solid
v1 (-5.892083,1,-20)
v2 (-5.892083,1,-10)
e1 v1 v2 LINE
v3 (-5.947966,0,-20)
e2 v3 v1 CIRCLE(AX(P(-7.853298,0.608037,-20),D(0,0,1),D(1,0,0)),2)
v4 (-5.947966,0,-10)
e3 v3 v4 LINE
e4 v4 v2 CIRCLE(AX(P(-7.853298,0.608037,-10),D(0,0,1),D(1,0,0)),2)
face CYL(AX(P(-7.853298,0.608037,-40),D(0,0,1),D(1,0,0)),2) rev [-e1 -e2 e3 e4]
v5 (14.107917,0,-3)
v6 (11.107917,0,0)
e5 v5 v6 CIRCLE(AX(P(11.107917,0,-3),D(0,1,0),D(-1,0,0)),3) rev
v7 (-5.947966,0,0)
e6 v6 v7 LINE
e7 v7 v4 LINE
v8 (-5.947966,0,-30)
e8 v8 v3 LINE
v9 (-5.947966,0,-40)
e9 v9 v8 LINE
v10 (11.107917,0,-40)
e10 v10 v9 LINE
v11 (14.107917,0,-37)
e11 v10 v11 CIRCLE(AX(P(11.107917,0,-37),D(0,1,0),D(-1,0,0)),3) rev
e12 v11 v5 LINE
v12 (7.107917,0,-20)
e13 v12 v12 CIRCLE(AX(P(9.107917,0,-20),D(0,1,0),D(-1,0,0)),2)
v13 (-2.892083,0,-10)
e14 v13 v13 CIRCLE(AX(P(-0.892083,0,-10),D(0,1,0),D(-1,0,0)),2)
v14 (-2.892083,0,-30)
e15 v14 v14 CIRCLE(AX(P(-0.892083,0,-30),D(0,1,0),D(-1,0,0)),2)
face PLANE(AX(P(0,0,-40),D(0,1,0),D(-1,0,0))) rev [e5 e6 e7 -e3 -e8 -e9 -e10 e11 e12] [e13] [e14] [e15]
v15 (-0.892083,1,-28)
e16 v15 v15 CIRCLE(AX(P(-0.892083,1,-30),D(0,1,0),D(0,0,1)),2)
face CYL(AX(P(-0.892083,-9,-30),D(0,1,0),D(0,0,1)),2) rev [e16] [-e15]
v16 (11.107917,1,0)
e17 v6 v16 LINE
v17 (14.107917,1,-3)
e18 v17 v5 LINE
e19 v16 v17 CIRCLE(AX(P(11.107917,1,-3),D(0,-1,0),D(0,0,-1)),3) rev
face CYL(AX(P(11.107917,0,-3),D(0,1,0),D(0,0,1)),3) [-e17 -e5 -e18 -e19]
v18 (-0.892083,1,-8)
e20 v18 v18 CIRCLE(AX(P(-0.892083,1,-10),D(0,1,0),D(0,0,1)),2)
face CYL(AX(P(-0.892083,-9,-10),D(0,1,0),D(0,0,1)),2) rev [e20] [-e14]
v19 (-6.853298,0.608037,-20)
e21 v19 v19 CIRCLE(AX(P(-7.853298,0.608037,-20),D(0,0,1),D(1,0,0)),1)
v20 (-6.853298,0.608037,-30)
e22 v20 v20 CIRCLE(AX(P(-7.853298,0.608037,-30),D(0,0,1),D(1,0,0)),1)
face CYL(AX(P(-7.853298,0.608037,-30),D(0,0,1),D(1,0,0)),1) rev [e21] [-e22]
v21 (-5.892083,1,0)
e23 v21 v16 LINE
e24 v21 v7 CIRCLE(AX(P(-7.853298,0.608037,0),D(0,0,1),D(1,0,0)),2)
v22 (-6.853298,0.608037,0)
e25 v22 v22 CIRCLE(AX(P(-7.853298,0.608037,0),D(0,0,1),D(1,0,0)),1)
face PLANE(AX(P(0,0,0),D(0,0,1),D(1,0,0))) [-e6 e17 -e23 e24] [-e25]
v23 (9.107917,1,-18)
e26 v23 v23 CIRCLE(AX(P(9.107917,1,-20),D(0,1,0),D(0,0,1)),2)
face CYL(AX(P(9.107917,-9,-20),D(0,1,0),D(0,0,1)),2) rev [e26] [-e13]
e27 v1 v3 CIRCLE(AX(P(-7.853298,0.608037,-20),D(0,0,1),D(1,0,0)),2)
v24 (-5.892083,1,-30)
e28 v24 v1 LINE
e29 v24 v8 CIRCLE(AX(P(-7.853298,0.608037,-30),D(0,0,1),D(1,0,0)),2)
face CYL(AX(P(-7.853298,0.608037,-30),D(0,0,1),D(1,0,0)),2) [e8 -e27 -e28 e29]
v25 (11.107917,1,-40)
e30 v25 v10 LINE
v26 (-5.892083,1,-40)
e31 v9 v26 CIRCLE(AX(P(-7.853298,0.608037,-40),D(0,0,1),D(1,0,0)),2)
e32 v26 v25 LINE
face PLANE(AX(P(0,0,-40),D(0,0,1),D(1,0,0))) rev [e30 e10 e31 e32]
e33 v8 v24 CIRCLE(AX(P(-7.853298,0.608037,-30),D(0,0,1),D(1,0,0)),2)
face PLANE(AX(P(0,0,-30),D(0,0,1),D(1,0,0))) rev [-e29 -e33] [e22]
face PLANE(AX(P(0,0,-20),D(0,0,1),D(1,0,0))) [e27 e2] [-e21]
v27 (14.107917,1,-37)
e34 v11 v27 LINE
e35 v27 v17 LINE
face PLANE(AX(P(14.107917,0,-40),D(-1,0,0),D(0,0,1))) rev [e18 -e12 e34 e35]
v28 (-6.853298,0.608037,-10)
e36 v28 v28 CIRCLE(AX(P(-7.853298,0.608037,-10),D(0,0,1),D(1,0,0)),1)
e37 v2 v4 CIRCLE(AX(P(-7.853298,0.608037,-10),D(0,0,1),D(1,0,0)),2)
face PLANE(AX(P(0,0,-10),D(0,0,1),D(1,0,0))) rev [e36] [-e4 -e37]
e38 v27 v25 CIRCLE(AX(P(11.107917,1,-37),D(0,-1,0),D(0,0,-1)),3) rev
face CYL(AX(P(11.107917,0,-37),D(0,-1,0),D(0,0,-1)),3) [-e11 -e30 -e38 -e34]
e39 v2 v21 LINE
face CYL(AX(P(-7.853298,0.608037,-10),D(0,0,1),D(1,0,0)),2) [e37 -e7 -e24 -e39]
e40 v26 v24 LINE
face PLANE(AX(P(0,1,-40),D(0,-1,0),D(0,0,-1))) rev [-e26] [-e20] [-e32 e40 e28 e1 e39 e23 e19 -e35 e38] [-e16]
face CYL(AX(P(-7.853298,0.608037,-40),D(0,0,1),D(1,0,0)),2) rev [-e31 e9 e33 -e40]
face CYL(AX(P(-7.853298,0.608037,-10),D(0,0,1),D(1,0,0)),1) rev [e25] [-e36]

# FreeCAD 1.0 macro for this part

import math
import FreeCAD as App
import Part
import Sketcher
from FreeCAD import Vector
Q = App.Units.Quantity


def edges_at(feature, points):
    """Names of the edges that pass closest to the given points."""
    edges = feature.Shape.Edges
    near = lambda p: min(range(len(edges)), key=lambda i: edges[i].distToShape(Part.Vertex(*p))[0])
    return sorted({f"Edge{near(p) + 1}" for p in points})

doc = App.newDocument("Part")
body = doc.addObject("PartDesign::Body", "Body")

# Sketch on XY plane
sketch1 = doc.addObject("Sketcher::SketchObject", "Sketch")
body.addObject(sketch1)
sketch1.AttachmentSupport = (doc.XY_Plane, [""])
sketch1.MapMode = "FlatFace"
sketch1.addGeometry(Part.LineSegment(Vector(14.11, 0, 0), Vector(14.11, 1, 0)), False)
sketch1.addGeometry(Part.LineSegment(Vector(14.11, 1, 0), Vector(-5.89, 1, 0)), False)
sketch1.addGeometry(Part.ArcOfCircle(Part.Circle(Vector(-7.85, 0.61, 0), Vector(0, 0, 1), 2), math.radians(0), math.radians(11.3)), False)
sketch1.addGeometry(Part.ArcOfCircle(Part.Circle(Vector(-7.85, 0.61, 0), Vector(0, 0, 1), 2), math.radians(-17.7), math.radians(0)), False)
sketch1.addGeometry(Part.LineSegment(Vector(-5.95, 0, 0), Vector(14.11, 0, 0)), False)
sketch1.addConstraint(Sketcher.Constraint("Coincident", 0, 2, 1, 1))
sketch1.addConstraint(Sketcher.Constraint("Coincident", 1, 2, 2, 2))
sketch1.addConstraint(Sketcher.Constraint("Tangent", 2, 1, 3, 2))
sketch1.addConstraint(Sketcher.Constraint("Coincident", 3, 1, 4, 1))
sketch1.addConstraint(Sketcher.Constraint("Coincident", 4, 2, 0, 1))
sketch1.addConstraint(Sketcher.Constraint("Vertical", 0))
sketch1.addConstraint(Sketcher.Constraint("Horizontal", 1))
sketch1.addConstraint(Sketcher.Constraint("Horizontal", 4))
sketch1.addConstraint(Sketcher.Constraint("Equal", 2, 3))
sketch1.addConstraint(Sketcher.Constraint("PointOnObject", 3, 1, -1))
sketch1.addConstraint(Sketcher.Constraint("Horizontal", 3, 3, 2, 1))
sketch1.addConstraint(Sketcher.Constraint("Radius", 2, Q("2 mm")))
sketch1.addConstraint(Sketcher.Constraint("DistanceX", 1, 2, 1, 1, Q("20 mm")))
sketch1.addConstraint(Sketcher.Constraint("DistanceY", 0, 1, 0, 2, Q("1 mm")))
sketch1.addConstraint(Sketcher.Constraint("DistanceX", 2, 3, -1, 1, Q("7.853298 mm")))
sketch1.addConstraint(Sketcher.Constraint("DistanceX", 4, 1, 4, 2, Q("20.055883 mm")))
pad1 = doc.addObject("PartDesign::Pad", "Pad")
body.addObject(pad1)
pad1.Profile = sketch1
pad1.Length = 40
pad1.Reversed = True

# Sketch on XY plane
sketch2 = doc.addObject("Sketcher::SketchObject", "Sketch001")
body.addObject(sketch2)
sketch2.AttachmentSupport = (doc.XY_Plane, [""])
sketch2.MapMode = "FlatFace"
sketch2.addGeometry(Part.Circle(Vector(-7.9, 0.6, 0), Vector(0, 0, 1), 2), False)
sketch2.addGeometry(Part.Circle(Vector(-7.9, 0.6, 0), Vector(0, 0, 1), 1), False)
sketch2.addConstraint(Sketcher.Constraint("Coincident", 1, 3, 0, 3))
sketch2.addConstraint(Sketcher.Constraint("Diameter", 0, Q("4 mm")))
sketch2.addConstraint(Sketcher.Constraint("Diameter", 1, Q("2 mm")))
sketch2.addConstraint(Sketcher.Constraint("DistanceX", 0, 3, -1, 1, Q("7.853298 mm")))
sketch2.addConstraint(Sketcher.Constraint("DistanceY", -1, 1, 0, 3, Q("0.608037 mm")))
pad2 = doc.addObject("PartDesign::Pad", "Pad001")
body.addObject(pad2)
pad2.Profile = sketch2
pad2.Length = 10
pad2.Reversed = True

# Sketch on XY plane
sketch3 = doc.addObject("Sketcher::SketchObject", "Sketch002")
body.addObject(sketch3)
sketch3.AttachmentSupport = (doc.XY_Plane, [""])
sketch3.MapMode = "FlatFace"
sketch3.AttachmentOffset = App.Placement(Vector(0, 0, -20), App.Rotation())
sketch3.addGeometry(Part.Circle(Vector(-7.9, 0.6, 0), Vector(0, 0, 1), 2), False)
sketch3.addGeometry(Part.Circle(Vector(-7.9, 0.6, 0), Vector(0, 0, 1), 1), False)
sketch3.addConstraint(Sketcher.Constraint("Coincident", 1, 3, 0, 3))
sketch3.addConstraint(Sketcher.Constraint("Diameter", 0, Q("4 mm")))
sketch3.addConstraint(Sketcher.Constraint("Diameter", 1, Q("2 mm")))
sketch3.addConstraint(Sketcher.Constraint("DistanceX", 0, 3, -1, 1, Q("7.853298 mm")))
sketch3.addConstraint(Sketcher.Constraint("DistanceY", -1, 1, 0, 3, Q("0.608037 mm")))
pad3 = doc.addObject("PartDesign::Pad", "Pad002")
body.addObject(pad3)
pad3.Profile = sketch3
pad3.Length = 10
pad3.Reversed = True

# Sketch on XZ plane
sketch4 = doc.addObject("Sketcher::SketchObject", "Sketch003")
body.addObject(sketch4)
sketch4.AttachmentSupport = (doc.XZ_Plane, [""])
sketch4.MapMode = "FlatFace"
sketch4.AttachmentOffset = App.Placement(Vector(0, 0, -1), App.Rotation())
sketch4.addGeometry(Part.Circle(Vector(-0.9, -30, 0), Vector(0, 0, 1), 2), False)
sketch4.addGeometry(Part.Circle(Vector(-0.9, -10, 0), Vector(0, 0, 1), 2), False)
sketch4.addGeometry(Part.Circle(Vector(9.1, -20, 0), Vector(0, 0, 1), 2), False)
sketch4.addConstraint(Sketcher.Constraint("Equal", 0, 1))
sketch4.addConstraint(Sketcher.Constraint("Equal", 1, 2))
sketch4.addConstraint(Sketcher.Constraint("Vertical", 0, 3, 1, 3))
sketch4.addConstraint(Sketcher.Constraint("Diameter", 0, Q("4 mm")))
sketch4.addConstraint(Sketcher.Constraint("DistanceY", 0, 3, -1, 1, Q("30 mm")))
sketch4.addConstraint(Sketcher.Constraint("DistanceY", 1, 3, -1, 1, Q("10 mm")))
sketch4.addConstraint(Sketcher.Constraint("DistanceY", 2, 3, -1, 1, Q("20 mm")))
sketch4.addConstraint(Sketcher.Constraint("DistanceX", 0, 3, 2, 3, Q("10 mm")))
sketch4.addConstraint(Sketcher.Constraint("DistanceX", 0, 3, -1, 1, Q("0.892083 mm")))
pocket1 = doc.addObject("PartDesign::Pocket", "Pocket")
body.addObject(pocket1)
pocket1.Profile = sketch4
pocket1.Length = 10
pocket1.Reversed = True
doc.recompute()

fillet = doc.addObject("PartDesign::Fillet", "Fillet")
body.addObject(fillet)
fillet.Base = (pocket1, edges_at(pocket1, [(14.108, 0.5, -40)]))
fillet.Radius = 3
doc.recompute()

fillet2 = doc.addObject("PartDesign::Fillet", "Fillet001")
body.addObject(fillet2)
fillet2.Base = (fillet, edges_at(fillet, [(14.108, 0.5, 0)]))
fillet2.Radius = 3

doc.recompute()
